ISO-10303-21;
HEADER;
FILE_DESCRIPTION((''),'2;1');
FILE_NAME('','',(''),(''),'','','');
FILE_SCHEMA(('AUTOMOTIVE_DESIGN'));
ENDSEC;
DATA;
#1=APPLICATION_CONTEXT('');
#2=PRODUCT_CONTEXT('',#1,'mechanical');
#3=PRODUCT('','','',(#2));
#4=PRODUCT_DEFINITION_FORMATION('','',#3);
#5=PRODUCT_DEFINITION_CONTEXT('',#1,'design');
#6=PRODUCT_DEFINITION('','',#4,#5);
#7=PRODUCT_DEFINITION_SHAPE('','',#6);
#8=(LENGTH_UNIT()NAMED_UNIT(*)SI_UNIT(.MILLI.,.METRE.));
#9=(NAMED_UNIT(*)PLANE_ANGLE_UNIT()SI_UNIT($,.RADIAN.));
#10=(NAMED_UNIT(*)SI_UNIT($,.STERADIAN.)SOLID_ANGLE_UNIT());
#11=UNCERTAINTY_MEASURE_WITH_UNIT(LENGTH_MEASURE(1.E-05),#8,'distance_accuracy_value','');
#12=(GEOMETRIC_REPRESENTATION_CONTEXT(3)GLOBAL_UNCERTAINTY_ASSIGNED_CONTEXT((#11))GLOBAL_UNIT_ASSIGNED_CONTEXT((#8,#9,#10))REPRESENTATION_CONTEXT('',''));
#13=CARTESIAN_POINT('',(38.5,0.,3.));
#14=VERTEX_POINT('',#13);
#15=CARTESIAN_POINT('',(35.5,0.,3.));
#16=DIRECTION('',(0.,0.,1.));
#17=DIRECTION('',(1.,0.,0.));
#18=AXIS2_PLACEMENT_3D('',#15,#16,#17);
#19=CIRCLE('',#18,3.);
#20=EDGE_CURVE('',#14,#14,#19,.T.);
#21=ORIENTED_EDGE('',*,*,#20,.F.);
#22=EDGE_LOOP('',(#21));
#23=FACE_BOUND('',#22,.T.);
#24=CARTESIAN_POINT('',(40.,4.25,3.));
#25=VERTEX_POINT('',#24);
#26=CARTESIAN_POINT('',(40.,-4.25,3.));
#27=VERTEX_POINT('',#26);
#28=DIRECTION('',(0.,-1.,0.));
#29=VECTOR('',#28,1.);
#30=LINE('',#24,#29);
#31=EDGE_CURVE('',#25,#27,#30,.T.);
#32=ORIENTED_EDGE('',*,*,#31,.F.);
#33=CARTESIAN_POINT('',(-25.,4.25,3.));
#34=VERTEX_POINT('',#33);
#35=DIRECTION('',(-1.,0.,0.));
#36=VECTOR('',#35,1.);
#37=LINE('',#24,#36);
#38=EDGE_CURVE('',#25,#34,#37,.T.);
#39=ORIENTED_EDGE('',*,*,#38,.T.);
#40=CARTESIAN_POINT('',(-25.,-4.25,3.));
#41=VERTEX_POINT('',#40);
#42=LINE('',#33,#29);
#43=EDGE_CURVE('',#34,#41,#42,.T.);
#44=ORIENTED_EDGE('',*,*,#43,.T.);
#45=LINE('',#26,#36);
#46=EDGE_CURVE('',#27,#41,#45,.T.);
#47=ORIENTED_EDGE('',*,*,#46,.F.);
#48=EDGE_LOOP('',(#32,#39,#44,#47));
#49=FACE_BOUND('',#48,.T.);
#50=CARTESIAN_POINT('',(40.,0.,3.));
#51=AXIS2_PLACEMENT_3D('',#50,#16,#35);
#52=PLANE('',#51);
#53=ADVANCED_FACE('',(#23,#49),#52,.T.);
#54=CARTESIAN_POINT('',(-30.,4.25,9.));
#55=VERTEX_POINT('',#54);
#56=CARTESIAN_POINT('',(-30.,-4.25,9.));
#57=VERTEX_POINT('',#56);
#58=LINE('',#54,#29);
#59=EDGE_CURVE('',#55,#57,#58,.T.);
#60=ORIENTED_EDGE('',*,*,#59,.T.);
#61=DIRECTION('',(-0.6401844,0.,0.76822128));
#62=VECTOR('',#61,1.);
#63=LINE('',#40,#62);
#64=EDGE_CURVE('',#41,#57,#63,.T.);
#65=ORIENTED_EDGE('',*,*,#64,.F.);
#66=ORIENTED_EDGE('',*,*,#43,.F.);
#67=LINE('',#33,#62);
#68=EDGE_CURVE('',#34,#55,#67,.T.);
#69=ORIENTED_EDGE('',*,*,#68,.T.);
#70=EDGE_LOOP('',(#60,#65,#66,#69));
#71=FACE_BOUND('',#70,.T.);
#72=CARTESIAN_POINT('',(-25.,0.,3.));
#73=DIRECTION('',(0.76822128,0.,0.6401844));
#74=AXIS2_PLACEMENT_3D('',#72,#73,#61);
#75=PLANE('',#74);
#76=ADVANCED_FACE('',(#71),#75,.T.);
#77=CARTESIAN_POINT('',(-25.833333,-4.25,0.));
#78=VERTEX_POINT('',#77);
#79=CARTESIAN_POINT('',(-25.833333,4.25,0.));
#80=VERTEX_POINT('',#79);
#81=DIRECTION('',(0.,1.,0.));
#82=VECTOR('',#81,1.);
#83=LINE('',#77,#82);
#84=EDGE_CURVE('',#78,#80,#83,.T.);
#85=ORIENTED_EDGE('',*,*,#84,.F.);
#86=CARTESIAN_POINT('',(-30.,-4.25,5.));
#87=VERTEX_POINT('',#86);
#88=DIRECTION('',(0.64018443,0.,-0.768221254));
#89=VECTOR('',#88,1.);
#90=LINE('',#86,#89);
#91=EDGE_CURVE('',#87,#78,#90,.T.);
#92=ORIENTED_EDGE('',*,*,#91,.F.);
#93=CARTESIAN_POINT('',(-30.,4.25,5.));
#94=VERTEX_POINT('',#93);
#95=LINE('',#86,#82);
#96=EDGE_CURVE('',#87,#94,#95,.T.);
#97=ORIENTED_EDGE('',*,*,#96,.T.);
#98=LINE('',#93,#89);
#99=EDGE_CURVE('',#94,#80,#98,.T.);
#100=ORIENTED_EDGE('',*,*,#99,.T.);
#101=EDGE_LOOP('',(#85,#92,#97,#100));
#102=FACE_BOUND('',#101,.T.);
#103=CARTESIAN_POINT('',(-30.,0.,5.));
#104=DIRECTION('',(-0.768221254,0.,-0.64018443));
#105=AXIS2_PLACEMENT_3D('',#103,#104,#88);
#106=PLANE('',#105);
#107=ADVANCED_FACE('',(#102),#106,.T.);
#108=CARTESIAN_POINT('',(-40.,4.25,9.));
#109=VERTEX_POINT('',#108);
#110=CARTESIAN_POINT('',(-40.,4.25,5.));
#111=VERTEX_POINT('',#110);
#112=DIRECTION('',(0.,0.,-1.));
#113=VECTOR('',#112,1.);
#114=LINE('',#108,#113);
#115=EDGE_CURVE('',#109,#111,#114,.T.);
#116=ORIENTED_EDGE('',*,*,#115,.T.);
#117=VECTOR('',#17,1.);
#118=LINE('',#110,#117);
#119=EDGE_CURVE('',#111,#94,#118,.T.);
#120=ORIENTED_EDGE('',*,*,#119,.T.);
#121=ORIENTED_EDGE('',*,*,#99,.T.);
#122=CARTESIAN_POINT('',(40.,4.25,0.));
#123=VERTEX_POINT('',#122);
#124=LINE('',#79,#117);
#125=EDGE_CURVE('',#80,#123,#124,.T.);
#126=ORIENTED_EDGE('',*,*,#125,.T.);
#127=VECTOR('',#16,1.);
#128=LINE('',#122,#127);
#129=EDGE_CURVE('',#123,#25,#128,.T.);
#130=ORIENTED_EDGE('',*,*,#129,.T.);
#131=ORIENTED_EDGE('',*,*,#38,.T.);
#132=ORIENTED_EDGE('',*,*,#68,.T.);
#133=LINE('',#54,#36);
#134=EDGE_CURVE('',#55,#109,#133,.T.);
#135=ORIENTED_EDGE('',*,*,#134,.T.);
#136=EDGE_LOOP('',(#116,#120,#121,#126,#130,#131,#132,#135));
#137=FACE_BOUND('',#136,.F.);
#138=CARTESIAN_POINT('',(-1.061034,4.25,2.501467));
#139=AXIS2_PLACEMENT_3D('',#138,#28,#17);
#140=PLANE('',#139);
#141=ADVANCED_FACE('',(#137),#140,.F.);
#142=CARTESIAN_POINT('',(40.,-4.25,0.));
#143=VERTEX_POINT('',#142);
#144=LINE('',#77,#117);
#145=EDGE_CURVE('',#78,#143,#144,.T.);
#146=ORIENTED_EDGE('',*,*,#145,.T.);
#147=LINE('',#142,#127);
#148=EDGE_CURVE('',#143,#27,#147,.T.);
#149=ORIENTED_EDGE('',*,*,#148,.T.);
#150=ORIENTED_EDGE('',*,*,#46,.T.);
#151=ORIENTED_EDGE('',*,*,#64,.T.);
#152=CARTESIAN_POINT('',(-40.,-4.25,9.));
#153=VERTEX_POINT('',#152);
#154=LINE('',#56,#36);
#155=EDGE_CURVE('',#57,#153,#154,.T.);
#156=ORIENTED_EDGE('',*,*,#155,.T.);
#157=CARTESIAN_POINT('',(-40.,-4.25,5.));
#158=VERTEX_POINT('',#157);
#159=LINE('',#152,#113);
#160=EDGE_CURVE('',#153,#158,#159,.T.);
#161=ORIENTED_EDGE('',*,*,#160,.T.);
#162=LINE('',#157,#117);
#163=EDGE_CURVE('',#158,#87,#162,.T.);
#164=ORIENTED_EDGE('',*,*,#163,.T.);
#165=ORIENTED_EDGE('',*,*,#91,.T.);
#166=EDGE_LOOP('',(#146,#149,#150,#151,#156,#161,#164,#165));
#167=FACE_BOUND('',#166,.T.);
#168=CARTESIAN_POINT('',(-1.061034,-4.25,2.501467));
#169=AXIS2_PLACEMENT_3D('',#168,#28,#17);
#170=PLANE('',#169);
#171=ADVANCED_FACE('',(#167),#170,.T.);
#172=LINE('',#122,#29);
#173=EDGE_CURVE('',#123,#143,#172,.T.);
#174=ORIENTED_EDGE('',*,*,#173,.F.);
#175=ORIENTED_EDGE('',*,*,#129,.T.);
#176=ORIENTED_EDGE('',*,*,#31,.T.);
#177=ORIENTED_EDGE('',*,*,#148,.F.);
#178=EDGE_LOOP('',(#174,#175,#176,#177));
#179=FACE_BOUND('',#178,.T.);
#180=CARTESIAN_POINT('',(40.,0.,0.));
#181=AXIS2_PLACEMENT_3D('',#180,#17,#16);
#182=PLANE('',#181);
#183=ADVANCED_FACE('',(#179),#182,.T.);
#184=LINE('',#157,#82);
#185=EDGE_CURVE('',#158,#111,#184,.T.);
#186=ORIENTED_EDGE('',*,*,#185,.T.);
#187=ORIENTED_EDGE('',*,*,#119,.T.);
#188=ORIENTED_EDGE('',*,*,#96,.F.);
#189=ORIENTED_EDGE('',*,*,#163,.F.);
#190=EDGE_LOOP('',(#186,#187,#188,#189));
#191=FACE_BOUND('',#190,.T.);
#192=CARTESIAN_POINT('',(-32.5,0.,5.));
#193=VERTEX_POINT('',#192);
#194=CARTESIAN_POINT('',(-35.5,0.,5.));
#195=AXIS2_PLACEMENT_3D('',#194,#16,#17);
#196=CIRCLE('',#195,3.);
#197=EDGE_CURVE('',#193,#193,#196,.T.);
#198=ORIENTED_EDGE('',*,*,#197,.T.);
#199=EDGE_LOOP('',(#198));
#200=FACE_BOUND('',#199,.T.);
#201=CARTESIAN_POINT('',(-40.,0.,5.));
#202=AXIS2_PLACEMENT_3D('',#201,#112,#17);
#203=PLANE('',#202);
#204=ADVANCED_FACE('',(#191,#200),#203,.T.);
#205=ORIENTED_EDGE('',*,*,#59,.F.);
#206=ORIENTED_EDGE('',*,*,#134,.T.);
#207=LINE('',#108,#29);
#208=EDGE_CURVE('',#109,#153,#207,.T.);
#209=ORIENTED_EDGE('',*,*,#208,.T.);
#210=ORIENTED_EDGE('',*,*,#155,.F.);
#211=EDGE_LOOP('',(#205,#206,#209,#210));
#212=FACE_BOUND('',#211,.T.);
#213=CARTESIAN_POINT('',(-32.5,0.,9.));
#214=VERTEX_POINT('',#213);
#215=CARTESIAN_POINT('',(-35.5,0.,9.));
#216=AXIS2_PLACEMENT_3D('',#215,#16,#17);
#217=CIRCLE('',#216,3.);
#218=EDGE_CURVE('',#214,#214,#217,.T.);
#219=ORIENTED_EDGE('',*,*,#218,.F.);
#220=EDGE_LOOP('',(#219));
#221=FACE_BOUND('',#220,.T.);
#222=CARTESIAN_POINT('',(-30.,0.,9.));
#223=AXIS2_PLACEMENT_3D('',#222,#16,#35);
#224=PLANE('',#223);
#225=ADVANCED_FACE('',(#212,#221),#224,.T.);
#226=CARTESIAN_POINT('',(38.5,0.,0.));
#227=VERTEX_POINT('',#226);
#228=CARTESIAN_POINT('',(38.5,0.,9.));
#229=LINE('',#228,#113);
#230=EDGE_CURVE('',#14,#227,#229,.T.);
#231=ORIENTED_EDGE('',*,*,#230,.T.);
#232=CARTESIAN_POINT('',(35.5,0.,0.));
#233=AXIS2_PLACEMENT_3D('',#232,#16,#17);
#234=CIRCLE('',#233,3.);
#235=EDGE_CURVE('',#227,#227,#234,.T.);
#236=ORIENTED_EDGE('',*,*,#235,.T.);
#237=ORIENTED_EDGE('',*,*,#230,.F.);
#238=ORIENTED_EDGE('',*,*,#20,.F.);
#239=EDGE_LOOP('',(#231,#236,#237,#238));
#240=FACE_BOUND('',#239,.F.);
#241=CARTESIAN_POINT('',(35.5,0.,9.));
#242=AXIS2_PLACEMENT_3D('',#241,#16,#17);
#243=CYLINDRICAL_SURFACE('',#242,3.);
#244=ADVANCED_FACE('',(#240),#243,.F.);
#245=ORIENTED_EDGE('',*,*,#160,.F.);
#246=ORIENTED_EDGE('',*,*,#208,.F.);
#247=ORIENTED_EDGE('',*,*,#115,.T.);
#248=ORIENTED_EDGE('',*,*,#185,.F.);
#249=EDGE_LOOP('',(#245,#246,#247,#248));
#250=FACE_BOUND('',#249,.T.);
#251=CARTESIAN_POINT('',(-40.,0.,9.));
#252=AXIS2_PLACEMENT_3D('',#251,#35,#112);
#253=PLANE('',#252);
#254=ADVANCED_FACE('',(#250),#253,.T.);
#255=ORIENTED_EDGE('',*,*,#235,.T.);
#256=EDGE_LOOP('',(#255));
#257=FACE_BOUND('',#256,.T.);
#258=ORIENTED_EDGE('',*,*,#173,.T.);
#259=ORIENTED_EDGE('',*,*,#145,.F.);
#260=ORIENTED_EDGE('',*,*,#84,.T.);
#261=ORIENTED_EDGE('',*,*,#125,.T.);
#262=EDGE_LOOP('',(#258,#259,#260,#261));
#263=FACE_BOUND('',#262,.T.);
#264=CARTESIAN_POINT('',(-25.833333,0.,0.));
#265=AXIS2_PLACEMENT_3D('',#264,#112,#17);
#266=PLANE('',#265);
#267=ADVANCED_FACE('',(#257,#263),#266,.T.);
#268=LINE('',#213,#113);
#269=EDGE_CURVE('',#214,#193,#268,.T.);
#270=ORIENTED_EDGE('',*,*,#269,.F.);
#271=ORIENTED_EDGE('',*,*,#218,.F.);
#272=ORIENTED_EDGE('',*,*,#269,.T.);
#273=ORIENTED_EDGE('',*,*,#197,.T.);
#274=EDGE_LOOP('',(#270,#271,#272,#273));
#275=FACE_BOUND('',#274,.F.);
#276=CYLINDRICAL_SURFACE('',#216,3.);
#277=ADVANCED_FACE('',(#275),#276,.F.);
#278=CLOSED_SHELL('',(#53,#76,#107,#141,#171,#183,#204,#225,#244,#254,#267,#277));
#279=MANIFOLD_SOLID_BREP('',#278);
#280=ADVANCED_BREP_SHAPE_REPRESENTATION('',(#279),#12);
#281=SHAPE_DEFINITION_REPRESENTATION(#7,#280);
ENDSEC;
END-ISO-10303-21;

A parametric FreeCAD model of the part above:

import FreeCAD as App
import Part
import Sketcher

V = App.Vector
Q = App.Units.Quantity

doc = App.newDocument("Part")
body = doc.addObject("PartDesign::Body", "Body")

sketch1 = body.newObject("Sketcher::SketchObject", "Sketch")
sketch1.AttachmentSupport = (doc.getObject("XZ_Plane"), [""])
sketch1.MapMode = "FlatFace"
sketch1.addGeometry(Part.LineSegment(V(-25.833333, 0, 0), V(40, 0, 0)), False)
sketch1.addGeometry(Part.LineSegment(V(40, 0, 0), V(40, 3, 0)), False)
sketch1.addGeometry(Part.LineSegment(V(40, 3, 0), V(-25, 3, 0)), False)
sketch1.addGeometry(Part.LineSegment(V(-25, 3, 0), V(-30, 9, 0)), False)
sketch1.addGeometry(Part.LineSegment(V(-30, 9, 0), V(-40, 9, 0)), False)
sketch1.addGeometry(Part.LineSegment(V(-40, 9, 0), V(-40, 5, 0)), False)
sketch1.addGeometry(Part.LineSegment(V(-40, 5, 0), V(-30, 5, 0)), False)
sketch1.addGeometry(Part.LineSegment(V(-30, 5, 0), V(-25.833333, 0, 0)), False)
sketch1.addConstraint(Sketcher.Constraint("Coincident", 0, 2, 1, 1))
sketch1.addConstraint(Sketcher.Constraint("Coincident", 1, 2, 2, 1))
sketch1.addConstraint(Sketcher.Constraint("Coincident", 2, 2, 3, 1))
sketch1.addConstraint(Sketcher.Constraint("Coincident", 3, 2, 4, 1))
sketch1.addConstraint(Sketcher.Constraint("Coincident", 4, 2, 5, 1))
sketch1.addConstraint(Sketcher.Constraint("Coincident", 5, 2, 6, 1))
sketch1.addConstraint(Sketcher.Constraint("Coincident", 6, 2, 7, 1))
sketch1.addConstraint(Sketcher.Constraint("Coincident", 7, 2, 0, 1))
sketch1.addConstraint(Sketcher.Constraint("Horizontal", 0))
sketch1.addConstraint(Sketcher.Constraint("Vertical", 1))
sketch1.addConstraint(Sketcher.Constraint("Horizontal", 2))
sketch1.addConstraint(Sketcher.Constraint("Horizontal", 4))
sketch1.addConstraint(Sketcher.Constraint("Vertical", 5))
sketch1.addConstraint(Sketcher.Constraint("Horizontal", 6))
sketch1.addConstraint(Sketcher.Constraint("PointOnObject", 0, 2, -1))
sketch1.addConstraint(Sketcher.Constraint("Parallel", 3, 7))
sketch1.addConstraint(Sketcher.Constraint("Vertical", 3, 2, 6, 2))
sketch1.addConstraint(Sketcher.Constraint("DistanceX", 2, 2, 2, 1, Q("65 mm")))
sketch1.addConstraint(Sketcher.Constraint("DistanceX", 4, 2, 4, 1, Q("10 mm")))
sketch1.addConstraint(Sketcher.Constraint("DistanceY", 1, 1, 1, 2, Q("3 mm")))
sketch1.addConstraint(Sketcher.Constraint("DistanceY", 5, 2, 5, 1, Q("4 mm")))
sketch1.addConstraint(Sketcher.Constraint("DistanceX", -1, 1, 0, 2, Q("40 mm")))
sketch1.addConstraint(Sketcher.Constraint("DistanceX", 3, 2, -1, 1, Q("30 mm")))
sketch1.addConstraint(Sketcher.Constraint("DistanceY", -1, 1, 3, 2, Q("9 mm")))
pad1 = body.newObject("PartDesign::Pad", "Pad")
pad1.Profile = sketch1
pad1.Length = 8.5
pad1.Midplane = True

sketch2 = body.newObject("Sketcher::SketchObject", "Sketch001")
sketch2.AttachmentSupport = (doc.getObject("XY_Plane"), [""])
sketch2.MapMode = "FlatFace"
sketch2.AttachmentOffset = App.Placement(V(0, 0, 9), App.Rotation())
sketch2.addGeometry(Part.Circle(V(-35.5, 0, 0), V(0, 0, 1), 3), False)
sketch2.addGeometry(Part.Circle(V(35.5, 0, 0), V(0, 0, 1), 3), False)
sketch2.addConstraint(Sketcher.Constraint("Equal", 0, 1))
sketch2.addConstraint(Sketcher.Constraint("Symmetric", 0, 3, 1, 3, -1, 1))
sketch2.addConstraint(Sketcher.Constraint("PointOnObject", 0, 3, -1))
sketch2.addConstraint(Sketcher.Constraint("Diameter", 0, Q("6 mm")))
sketch2.addConstraint(Sketcher.Constraint("DistanceX", 0, 3, 1, 3, Q("71 mm")))
pocket1 = body.newObject("PartDesign::Pocket", "Pocket")
pocket1.Profile = sketch2
pocket1.Length = 25

doc.recompute()
